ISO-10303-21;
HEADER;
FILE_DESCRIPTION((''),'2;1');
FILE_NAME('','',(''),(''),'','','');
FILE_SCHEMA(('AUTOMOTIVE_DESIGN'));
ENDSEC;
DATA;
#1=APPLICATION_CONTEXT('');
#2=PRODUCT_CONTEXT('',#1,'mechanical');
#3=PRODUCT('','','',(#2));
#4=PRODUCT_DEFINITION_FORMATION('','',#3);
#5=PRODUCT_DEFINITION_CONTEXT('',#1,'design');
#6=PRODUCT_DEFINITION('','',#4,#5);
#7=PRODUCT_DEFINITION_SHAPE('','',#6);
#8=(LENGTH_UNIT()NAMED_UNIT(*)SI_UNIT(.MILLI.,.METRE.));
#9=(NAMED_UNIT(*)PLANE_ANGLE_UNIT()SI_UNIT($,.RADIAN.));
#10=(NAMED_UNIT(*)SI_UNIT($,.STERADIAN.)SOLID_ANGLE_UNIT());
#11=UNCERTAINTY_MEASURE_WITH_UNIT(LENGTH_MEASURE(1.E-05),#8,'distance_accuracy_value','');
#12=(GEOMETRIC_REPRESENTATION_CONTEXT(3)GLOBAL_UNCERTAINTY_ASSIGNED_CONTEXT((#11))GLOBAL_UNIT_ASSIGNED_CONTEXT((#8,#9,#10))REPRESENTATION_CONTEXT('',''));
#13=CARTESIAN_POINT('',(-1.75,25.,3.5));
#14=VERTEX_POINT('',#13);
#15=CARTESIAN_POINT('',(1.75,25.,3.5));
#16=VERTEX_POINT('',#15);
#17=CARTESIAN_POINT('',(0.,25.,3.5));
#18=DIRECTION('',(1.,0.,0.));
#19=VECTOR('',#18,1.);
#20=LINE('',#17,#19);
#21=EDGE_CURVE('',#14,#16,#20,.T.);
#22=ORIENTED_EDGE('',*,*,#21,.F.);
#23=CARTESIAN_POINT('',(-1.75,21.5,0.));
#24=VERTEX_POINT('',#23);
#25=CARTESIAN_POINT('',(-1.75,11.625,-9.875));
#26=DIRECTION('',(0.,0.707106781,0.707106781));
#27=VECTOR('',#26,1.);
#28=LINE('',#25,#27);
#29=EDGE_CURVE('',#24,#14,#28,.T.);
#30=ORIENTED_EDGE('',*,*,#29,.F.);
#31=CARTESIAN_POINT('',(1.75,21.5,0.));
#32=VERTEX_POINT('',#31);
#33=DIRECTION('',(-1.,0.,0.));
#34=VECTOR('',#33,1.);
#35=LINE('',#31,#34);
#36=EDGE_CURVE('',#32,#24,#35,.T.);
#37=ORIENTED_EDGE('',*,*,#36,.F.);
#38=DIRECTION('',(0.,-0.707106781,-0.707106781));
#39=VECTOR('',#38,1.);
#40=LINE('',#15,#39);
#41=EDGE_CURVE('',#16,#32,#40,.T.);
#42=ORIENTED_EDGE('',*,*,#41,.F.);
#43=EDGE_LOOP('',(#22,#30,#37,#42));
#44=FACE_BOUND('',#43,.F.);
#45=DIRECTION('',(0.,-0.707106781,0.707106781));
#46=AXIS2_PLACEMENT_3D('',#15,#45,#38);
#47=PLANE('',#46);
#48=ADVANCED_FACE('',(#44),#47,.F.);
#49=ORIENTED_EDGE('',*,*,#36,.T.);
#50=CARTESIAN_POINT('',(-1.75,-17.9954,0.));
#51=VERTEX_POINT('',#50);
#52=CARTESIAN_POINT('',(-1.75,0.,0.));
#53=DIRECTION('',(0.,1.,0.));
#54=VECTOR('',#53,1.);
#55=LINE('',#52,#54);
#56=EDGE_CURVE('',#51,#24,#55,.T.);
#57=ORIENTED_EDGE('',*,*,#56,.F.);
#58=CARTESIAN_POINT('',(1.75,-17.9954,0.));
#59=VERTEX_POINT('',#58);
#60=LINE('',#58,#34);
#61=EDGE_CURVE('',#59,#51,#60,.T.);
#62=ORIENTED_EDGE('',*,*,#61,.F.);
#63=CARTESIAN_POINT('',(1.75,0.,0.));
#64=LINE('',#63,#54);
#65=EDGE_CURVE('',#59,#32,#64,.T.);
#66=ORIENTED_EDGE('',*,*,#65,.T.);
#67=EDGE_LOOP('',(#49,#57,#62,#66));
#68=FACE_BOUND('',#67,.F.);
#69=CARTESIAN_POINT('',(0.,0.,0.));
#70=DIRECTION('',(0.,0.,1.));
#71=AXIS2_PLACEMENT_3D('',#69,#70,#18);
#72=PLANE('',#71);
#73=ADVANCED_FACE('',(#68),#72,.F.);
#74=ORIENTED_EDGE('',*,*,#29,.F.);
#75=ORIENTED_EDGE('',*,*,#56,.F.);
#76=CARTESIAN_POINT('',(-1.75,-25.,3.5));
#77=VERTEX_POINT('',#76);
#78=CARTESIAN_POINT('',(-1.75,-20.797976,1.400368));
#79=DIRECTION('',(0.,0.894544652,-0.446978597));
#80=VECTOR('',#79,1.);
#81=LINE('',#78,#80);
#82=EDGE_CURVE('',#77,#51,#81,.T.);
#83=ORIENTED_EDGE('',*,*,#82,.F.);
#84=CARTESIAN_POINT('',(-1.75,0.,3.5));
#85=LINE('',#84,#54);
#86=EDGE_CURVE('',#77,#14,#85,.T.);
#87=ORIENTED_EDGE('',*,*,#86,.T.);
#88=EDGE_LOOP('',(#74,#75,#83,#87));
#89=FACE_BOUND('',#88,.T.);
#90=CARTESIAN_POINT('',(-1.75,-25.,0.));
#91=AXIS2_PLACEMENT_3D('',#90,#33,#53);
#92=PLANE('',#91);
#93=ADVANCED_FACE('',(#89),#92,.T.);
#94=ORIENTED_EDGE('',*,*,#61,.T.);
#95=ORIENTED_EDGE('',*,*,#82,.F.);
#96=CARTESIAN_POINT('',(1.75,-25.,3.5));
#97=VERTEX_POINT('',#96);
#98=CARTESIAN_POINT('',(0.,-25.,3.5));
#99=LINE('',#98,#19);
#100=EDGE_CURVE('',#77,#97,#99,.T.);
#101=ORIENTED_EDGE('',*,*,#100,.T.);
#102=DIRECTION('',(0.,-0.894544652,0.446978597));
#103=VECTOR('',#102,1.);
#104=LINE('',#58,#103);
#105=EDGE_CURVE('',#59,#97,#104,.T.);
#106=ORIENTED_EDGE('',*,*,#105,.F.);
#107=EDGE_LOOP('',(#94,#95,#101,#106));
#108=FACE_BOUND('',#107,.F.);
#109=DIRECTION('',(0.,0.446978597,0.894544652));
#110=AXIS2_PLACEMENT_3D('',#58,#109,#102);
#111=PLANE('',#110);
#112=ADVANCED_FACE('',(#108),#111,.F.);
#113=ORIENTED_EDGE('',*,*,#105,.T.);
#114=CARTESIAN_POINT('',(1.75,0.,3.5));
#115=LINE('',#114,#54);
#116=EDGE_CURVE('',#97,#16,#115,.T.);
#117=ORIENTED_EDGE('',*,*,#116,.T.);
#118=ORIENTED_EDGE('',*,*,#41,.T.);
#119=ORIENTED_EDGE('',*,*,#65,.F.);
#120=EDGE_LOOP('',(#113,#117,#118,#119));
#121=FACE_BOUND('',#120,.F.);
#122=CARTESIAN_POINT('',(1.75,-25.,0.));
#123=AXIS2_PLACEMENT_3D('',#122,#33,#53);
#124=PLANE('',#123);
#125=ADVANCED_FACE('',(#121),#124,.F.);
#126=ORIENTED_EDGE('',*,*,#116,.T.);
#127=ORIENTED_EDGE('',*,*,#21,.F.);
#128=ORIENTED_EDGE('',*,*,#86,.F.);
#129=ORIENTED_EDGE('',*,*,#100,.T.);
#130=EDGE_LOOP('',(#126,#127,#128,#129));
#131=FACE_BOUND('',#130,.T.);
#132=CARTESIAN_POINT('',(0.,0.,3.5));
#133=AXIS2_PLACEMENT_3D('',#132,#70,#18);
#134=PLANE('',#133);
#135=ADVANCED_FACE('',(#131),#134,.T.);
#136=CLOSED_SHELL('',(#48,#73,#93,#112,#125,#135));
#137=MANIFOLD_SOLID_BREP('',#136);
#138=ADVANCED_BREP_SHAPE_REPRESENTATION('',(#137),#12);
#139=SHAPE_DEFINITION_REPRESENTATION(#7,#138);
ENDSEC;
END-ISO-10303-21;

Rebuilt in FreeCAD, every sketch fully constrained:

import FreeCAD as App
import Part
import Sketcher
from FreeCAD import Vector
Q = App.Units.Quantity


def add_polygon(sketch, points):
    """Adds a closed chain of lines whose ends are joined by coincident constraints."""
    first, n = sketch.GeometryCount, len(points)
    for a, b in zip(points, points[1:] + points[:1]):
        sketch.addGeometry(Part.LineSegment(App.Vector(*a, 0), App.Vector(*b, 0)), False)
    for i in range(n):
        sketch.addConstraint(Sketcher.Constraint("Coincident", first + i, 2, first + (i + 1) % n, 1))

doc = App.newDocument("Part")
body = doc.addObject("PartDesign::Body", "Body")

sketch1 = body.newObject("Sketcher::SketchObject", "Sketch")
sketch1.AttachmentSupport = (doc.getObject("XY_Plane"), [""])
sketch1.MapMode = "FlatFace"
add_polygon(sketch1, [(-1.8, 25), (-1.8, -25), (1.8, -25), (1.8, 25)])
sketch1.addConstraint(Sketcher.Constraint("Vertical", 0))
sketch1.addConstraint(Sketcher.Constraint("Horizontal", 1))
sketch1.addConstraint(Sketcher.Constraint("Vertical", 2))
sketch1.addConstraint(Sketcher.Constraint("Horizontal", 3))
sketch1.addConstraint(Sketcher.Constraint("Symmetric", 0, 2, 2, 2, -1, 1))
sketch1.addConstraint(Sketcher.Constraint("DistanceY", 0, 2, 0, 1, Q("50 mm")))
sketch1.addConstraint(Sketcher.Constraint("DistanceX", 1, 1, 1, 2, Q("3.5 mm")))
pad1 = body.newObject("PartDesign::Pad", "Pad")
pad1.Profile = sketch1
pad1.Length = 3.5

sketch2 = body.newObject("Sketcher::SketchObject", "Sketch001")
sketch2.AttachmentSupport = (doc.getObject("YZ_Plane"), [""])
sketch2.MapMode = "FlatFace"
sketch2.AttachmentOffset = App.Placement(Vector(0, 0, 1.75), App.Rotation())
add_polygon(sketch2, [(-18, 0), (-25, 3.5), (-25, 0)])
add_polygon(sketch2, [(25, 0), (25, 3.5), (21.5, 0)])
sketch2.addConstraint(Sketcher.Constraint("Vertical", 1))
sketch2.addConstraint(Sketcher.Constraint("Horizontal", 2))
sketch2.addConstraint(Sketcher.Constraint("Vertical", 3))
sketch2.addConstraint(Sketcher.Constraint("Horizontal", 5))
sketch2.addConstraint(Sketcher.Constraint("Symmetric", 1, 2, 5, 2, -1, 1))
sketch2.addConstraint(Sketcher.Constraint("PointOnObject", 1, 2, -1))
sketch2.addConstraint(Sketcher.Constraint("Horizontal", 0, 2, 3, 2))
sketch2.addConstraint(Sketcher.Constraint("Equal", 5, 1))
sketch2.addConstraint(Sketcher.Constraint("DistanceX", 5, 1, 5, 2, Q("3.5 mm")))
sketch2.addConstraint(Sketcher.Constraint("DistanceX", 0, 2, -1, 1, Q("25 mm")))
sketch2.addConstraint(Sketcher.Constraint("Angle", 0, Q("153.450002 deg")))
pocket1 = body.newObject("PartDesign::Pocket", "Pocket")
pocket1.Profile = sketch2
pocket1.Type = "ThroughAll"

doc.recompute()
